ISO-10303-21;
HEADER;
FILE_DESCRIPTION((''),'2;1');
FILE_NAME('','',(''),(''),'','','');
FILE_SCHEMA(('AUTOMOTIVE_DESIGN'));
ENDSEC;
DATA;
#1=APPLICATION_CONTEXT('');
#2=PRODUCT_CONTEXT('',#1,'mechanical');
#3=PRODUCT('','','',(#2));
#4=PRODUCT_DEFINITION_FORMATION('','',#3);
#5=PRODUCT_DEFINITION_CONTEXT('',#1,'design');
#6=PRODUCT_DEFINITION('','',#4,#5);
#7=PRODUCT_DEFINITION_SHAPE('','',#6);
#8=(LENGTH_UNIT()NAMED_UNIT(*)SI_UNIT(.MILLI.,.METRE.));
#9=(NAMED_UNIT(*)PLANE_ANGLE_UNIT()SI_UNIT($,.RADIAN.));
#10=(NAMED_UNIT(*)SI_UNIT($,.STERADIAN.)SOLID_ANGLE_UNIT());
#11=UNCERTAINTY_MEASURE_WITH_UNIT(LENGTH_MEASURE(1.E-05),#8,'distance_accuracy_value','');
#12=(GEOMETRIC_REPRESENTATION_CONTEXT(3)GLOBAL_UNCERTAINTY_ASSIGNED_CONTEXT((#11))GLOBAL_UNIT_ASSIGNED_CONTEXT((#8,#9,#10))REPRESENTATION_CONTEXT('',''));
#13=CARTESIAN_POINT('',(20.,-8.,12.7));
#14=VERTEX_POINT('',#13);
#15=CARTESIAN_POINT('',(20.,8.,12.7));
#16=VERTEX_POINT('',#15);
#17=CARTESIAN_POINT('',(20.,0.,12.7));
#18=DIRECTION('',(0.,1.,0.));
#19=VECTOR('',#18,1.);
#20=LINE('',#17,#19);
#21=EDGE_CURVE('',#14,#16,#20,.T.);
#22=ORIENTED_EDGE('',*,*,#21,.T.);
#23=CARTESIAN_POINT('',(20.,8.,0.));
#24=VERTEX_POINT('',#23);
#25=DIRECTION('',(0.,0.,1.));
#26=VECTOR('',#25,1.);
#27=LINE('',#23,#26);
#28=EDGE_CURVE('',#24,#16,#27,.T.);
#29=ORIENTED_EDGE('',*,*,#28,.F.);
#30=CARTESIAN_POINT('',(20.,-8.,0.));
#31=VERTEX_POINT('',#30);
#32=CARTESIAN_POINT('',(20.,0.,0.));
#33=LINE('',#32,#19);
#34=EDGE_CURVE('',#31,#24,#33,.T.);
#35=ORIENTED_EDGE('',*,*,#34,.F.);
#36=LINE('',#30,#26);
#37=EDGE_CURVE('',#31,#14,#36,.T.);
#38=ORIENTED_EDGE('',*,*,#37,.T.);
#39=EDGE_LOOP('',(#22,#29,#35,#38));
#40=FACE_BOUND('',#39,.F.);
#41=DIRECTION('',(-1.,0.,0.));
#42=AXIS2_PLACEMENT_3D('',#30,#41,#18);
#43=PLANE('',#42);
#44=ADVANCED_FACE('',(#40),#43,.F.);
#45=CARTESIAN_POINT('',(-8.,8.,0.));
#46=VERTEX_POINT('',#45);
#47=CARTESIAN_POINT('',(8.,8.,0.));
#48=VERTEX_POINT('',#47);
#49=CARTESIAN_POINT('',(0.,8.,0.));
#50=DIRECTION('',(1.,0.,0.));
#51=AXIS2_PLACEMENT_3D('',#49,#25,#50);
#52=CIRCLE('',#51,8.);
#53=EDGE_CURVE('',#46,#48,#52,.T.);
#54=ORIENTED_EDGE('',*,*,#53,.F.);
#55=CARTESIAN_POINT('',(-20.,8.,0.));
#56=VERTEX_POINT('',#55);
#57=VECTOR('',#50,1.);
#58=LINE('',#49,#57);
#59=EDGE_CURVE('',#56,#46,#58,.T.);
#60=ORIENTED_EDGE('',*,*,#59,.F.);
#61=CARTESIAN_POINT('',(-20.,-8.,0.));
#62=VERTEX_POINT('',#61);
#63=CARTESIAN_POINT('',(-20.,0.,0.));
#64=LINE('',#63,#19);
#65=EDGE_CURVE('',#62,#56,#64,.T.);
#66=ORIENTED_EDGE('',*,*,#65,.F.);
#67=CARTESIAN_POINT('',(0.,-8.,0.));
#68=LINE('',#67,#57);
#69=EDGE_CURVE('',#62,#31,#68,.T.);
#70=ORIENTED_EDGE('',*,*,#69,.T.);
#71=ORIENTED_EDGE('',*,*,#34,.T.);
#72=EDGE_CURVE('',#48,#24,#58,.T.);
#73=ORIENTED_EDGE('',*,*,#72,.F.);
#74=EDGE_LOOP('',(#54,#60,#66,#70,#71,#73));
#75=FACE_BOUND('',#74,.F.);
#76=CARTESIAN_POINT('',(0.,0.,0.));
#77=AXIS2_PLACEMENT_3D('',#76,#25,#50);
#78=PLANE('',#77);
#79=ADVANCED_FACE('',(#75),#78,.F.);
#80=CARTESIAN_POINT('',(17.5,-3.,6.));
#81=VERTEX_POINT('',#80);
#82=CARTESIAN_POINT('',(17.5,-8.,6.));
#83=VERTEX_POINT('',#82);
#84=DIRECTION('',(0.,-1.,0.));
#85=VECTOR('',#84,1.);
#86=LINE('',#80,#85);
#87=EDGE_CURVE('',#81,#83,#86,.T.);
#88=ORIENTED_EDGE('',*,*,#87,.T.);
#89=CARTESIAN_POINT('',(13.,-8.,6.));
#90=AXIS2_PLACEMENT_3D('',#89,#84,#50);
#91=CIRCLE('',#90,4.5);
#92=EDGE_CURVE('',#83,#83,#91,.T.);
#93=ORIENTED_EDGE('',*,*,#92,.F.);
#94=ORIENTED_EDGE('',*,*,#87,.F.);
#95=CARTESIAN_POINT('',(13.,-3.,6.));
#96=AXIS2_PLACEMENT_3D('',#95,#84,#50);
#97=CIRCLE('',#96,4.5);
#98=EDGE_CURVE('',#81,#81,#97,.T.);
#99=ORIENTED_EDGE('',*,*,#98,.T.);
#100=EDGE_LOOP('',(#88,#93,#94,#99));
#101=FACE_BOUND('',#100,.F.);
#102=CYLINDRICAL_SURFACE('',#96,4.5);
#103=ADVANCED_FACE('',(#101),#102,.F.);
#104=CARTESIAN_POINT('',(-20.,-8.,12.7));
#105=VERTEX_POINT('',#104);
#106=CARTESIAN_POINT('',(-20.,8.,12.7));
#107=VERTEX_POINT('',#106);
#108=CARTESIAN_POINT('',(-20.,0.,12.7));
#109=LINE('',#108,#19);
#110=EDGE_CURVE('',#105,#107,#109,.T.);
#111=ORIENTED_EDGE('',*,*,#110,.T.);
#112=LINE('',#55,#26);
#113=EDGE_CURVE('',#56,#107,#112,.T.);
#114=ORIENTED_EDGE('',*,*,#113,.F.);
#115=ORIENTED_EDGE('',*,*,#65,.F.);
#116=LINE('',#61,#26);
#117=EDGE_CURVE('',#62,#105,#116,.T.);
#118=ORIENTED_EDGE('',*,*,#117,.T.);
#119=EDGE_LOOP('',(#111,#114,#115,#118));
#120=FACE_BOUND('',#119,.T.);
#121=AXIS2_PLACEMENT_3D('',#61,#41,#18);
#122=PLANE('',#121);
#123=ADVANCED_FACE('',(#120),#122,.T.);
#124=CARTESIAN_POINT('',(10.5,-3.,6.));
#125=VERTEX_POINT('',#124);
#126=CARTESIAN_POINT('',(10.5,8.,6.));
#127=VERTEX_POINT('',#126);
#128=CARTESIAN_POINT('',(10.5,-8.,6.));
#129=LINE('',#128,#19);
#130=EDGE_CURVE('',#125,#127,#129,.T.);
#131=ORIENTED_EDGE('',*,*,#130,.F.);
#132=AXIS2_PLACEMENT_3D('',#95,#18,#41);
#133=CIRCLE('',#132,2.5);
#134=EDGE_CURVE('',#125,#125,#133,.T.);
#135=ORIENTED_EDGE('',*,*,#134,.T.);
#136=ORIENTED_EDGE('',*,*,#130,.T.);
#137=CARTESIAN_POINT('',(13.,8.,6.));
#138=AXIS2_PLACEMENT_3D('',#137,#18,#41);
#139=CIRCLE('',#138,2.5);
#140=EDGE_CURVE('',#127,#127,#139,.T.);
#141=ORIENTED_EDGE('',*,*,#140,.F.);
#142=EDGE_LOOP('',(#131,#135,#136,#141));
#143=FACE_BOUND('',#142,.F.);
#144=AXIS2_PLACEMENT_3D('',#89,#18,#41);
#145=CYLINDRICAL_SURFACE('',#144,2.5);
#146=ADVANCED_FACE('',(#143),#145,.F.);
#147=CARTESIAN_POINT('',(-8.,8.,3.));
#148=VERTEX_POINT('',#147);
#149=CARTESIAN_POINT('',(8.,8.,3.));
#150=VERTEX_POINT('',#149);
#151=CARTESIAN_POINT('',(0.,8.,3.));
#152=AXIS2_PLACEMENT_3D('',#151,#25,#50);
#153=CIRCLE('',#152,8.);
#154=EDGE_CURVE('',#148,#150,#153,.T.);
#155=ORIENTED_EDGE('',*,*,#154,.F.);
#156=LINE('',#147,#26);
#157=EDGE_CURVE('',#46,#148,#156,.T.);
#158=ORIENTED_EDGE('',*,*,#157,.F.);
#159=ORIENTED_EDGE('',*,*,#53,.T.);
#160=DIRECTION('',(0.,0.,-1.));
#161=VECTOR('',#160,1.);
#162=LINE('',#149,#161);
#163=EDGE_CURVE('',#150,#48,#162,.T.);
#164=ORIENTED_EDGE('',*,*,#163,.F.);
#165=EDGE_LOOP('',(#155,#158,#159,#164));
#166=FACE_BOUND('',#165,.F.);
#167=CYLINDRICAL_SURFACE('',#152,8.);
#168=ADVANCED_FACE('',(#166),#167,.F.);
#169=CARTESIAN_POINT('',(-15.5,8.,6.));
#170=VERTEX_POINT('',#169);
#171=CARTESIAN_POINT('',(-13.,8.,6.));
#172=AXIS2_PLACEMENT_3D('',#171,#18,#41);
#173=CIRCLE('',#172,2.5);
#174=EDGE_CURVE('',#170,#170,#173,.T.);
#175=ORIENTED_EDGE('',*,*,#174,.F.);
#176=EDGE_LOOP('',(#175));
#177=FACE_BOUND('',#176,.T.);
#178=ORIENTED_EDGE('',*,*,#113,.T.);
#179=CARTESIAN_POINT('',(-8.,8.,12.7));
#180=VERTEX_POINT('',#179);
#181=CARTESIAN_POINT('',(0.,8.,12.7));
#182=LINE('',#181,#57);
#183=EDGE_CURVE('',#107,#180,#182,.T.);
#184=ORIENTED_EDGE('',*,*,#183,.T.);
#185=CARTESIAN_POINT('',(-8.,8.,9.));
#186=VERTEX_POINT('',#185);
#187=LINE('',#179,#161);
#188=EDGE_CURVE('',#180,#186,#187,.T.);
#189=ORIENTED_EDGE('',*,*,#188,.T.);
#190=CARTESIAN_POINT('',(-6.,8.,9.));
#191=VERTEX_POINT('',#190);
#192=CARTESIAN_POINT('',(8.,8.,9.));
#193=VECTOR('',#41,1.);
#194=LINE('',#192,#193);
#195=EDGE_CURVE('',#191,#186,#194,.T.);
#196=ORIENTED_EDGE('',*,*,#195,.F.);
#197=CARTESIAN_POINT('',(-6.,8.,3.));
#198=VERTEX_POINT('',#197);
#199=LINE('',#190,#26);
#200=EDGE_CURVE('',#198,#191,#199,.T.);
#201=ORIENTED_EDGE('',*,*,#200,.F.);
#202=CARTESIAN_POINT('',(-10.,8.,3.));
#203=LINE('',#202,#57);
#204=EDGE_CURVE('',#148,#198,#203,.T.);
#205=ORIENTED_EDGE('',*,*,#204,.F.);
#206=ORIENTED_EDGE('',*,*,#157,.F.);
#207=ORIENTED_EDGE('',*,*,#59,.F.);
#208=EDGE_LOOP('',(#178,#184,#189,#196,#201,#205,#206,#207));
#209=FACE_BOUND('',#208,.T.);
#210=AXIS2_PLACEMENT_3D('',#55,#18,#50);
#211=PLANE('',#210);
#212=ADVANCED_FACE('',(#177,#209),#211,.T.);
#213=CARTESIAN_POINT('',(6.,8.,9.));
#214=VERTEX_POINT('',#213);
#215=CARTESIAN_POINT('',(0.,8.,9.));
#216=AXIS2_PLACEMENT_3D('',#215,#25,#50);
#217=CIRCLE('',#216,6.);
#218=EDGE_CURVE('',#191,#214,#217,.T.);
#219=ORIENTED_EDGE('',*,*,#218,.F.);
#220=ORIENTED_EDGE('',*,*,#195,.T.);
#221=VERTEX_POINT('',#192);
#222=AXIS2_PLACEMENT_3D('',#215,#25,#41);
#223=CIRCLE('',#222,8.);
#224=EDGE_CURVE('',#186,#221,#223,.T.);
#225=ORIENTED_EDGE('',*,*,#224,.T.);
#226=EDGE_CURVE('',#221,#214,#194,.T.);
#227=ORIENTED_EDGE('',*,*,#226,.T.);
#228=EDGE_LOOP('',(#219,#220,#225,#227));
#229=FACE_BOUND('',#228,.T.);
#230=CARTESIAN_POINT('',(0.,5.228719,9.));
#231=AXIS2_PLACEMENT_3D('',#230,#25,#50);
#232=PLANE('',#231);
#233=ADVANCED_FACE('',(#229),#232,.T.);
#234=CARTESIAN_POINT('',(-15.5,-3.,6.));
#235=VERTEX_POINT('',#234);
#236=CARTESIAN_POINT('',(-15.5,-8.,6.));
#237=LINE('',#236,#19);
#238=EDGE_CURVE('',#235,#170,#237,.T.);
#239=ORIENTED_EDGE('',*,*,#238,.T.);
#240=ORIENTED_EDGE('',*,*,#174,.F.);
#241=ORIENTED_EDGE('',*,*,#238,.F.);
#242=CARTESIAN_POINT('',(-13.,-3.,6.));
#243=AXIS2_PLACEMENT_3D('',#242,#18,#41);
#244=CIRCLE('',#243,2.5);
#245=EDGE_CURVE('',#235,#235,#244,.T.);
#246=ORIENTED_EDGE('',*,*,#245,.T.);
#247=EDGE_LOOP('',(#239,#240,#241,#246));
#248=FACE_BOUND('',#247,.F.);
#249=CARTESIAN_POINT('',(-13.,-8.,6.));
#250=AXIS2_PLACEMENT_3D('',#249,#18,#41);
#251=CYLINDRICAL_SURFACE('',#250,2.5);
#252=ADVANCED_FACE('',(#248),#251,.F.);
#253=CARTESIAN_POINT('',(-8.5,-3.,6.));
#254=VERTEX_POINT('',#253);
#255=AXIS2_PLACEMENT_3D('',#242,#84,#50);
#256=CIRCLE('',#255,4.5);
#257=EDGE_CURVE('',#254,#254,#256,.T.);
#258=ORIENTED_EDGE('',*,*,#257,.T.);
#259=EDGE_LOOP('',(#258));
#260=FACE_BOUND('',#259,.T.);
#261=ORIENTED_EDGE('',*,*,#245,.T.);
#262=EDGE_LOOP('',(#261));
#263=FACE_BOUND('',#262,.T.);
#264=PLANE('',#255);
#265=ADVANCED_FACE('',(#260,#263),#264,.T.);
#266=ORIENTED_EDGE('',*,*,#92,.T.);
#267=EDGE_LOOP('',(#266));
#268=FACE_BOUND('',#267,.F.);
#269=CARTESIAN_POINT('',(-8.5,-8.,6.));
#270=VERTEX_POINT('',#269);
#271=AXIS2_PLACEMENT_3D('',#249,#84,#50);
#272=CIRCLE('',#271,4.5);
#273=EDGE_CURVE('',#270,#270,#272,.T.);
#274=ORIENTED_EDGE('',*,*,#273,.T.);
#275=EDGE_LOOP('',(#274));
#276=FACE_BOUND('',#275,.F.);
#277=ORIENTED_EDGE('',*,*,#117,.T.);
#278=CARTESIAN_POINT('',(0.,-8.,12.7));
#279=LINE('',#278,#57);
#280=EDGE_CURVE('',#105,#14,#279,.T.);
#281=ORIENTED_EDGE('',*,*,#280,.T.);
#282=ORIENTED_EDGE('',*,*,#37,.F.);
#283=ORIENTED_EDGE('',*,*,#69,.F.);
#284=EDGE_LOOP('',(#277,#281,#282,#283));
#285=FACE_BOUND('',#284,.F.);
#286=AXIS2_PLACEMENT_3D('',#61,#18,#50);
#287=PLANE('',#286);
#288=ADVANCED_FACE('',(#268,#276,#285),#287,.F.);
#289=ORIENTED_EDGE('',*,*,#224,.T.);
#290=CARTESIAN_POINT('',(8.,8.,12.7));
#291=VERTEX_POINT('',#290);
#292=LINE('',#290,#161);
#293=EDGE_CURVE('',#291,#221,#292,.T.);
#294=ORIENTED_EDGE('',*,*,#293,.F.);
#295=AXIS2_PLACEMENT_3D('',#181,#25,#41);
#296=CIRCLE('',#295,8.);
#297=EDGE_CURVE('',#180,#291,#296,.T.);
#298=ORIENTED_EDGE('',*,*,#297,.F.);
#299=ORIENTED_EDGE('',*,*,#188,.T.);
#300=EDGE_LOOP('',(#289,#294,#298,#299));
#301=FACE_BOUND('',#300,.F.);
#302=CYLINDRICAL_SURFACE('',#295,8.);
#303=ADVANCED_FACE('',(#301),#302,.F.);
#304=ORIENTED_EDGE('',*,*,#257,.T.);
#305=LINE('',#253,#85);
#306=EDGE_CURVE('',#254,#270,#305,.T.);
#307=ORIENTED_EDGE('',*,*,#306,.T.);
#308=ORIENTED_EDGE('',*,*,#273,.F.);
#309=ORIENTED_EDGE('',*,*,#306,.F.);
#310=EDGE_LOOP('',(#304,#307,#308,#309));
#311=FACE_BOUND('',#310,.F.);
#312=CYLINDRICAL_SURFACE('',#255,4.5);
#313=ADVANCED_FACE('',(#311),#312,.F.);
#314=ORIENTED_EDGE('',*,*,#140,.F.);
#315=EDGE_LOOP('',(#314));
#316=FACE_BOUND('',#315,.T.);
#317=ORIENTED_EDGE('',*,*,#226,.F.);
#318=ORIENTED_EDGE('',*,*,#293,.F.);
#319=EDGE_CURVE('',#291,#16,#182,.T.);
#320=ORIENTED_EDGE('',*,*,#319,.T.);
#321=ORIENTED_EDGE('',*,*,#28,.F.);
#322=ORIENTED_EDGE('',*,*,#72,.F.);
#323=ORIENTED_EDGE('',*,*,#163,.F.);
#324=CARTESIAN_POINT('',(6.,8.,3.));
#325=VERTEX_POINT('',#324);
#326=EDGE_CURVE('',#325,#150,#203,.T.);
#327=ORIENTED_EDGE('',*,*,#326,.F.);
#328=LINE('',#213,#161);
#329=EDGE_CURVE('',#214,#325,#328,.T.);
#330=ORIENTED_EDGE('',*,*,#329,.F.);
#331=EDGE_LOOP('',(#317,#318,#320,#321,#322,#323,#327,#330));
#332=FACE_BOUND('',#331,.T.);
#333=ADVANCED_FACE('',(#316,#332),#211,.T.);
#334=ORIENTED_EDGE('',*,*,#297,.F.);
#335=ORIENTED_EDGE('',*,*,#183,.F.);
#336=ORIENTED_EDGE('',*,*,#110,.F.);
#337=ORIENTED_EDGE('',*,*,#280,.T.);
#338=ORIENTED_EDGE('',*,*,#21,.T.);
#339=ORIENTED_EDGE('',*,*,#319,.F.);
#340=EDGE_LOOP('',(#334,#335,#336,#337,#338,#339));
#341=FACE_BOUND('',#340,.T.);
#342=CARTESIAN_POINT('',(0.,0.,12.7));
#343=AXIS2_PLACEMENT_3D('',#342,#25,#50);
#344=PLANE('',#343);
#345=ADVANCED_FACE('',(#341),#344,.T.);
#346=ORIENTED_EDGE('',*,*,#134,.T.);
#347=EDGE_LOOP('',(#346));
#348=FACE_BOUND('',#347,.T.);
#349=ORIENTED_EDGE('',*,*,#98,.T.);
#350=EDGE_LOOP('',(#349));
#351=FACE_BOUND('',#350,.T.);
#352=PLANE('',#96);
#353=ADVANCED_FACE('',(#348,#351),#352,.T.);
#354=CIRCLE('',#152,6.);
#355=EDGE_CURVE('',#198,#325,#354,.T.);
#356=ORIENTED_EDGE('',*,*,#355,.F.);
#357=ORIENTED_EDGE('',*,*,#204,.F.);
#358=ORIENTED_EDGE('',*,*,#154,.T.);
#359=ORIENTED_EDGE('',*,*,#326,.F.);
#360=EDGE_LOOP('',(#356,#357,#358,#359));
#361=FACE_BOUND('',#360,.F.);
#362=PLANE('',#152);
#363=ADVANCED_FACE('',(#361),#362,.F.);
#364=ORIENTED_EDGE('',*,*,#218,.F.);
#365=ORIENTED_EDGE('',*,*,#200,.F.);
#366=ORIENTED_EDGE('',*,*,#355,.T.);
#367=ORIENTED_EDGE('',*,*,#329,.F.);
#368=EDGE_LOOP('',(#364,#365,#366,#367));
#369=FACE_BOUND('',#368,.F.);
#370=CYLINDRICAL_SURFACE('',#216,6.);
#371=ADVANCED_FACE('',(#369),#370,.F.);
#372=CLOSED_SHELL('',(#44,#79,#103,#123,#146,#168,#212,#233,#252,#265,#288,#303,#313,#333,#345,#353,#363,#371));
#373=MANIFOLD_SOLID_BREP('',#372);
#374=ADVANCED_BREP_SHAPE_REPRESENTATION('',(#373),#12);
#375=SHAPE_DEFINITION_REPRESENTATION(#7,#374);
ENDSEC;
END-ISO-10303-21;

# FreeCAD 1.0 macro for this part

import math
import FreeCAD as App
import Part
import Sketcher
from FreeCAD import Vector
Q = App.Units.Quantity


def add_polygon(sketch, points):
    """Adds a closed chain of lines whose ends are joined by coincident constraints."""
    first, n = sketch.GeometryCount, len(points)
    for a, b in zip(points, points[1:] + points[:1]):
        sketch.addGeometry(Part.LineSegment(App.Vector(*a, 0), App.Vector(*b, 0)), False)
    for i in range(n):
        sketch.addConstraint(Sketcher.Constraint("Coincident", first + i, 2, first + (i + 1) % n, 1))

doc = App.newDocument("Part")
body = doc.addObject("PartDesign::Body", "Body")

# Sketch on XY plane
sketch1 = body.newObject("Sketcher::SketchObject", "Sketch")
sketch1.AttachmentSupport = (doc.getObject("XY_Plane"), [""])
sketch1.MapMode = "FlatFace"
add_polygon(sketch1, [(-20, 8), (-20, -8), (20, -8), (20, 8)])  # lines 0-3
sketch1.addConstraint(Sketcher.Constraint("Vertical", 0))
sketch1.addConstraint(Sketcher.Constraint("Horizontal", 1))
sketch1.addConstraint(Sketcher.Constraint("Vertical", 2))
sketch1.addConstraint(Sketcher.Constraint("Horizontal", 3))
sketch1.addConstraint(Sketcher.Constraint("Symmetric", 0, 2, 2, 2, -1, 1))
sketch1.addConstraint(Sketcher.Constraint("DistanceX", 1, 1, 1, 2, Q("40 mm")))
sketch1.addConstraint(Sketcher.Constraint("DistanceY", 0, 2, 0, 1, Q("16 mm")))
pad1 = body.newObject("PartDesign::Pad", "Pad")
pad1.Profile = sketch1
pad1.Length = 12.7

# Sketch on XY plane
sketch2 = body.newObject("Sketcher::SketchObject", "Sketch001")
sketch2.AttachmentSupport = (doc.getObject("XY_Plane"), [""])
sketch2.MapMode = "FlatFace"
sketch2.AttachmentOffset = App.Placement(Vector(0, 0, 12.7), App.Rotation())
sketch2.addGeometry(Part.ArcOfCircle(Part.Circle(Vector(0, 8, 0), Vector(0, 0, 1), 8), math.radians(180), math.radians(360)), False)
sketch2.addGeometry(Part.LineSegment(Vector(8, 8, 0), Vector(-8, 8, 0)), False)
sketch2.addConstraint(Sketcher.Constraint("Coincident", 0, 1, 1, 2))
sketch2.addConstraint(Sketcher.Constraint("Coincident", 1, 1, 0, 2))
sketch2.addConstraint(Sketcher.Constraint("Horizontal", 1))
sketch2.addConstraint(Sketcher.Constraint("PointOnObject", 0, 3, -2))
sketch2.addConstraint(Sketcher.Constraint("Radius", 0, Q("8 mm")))
sketch2.addConstraint(Sketcher.Constraint("DistanceY", -1, 1, 0, 3, Q("8 mm")))
sketch2.addConstraint(Sketcher.Constraint("DistanceY", -1, 1, 0, 1, Q("8 mm")))
pocket1 = body.newObject("PartDesign::Pocket", "Pocket")
pocket1.Profile = sketch2
pocket1.Length = 3.7

# Sketch on XY plane
sketch3 = body.newObject("Sketcher::SketchObject", "Sketch002")
sketch3.AttachmentSupport = (doc.getObject("XY_Plane"), [""])
sketch3.MapMode = "FlatFace"
sketch3.AttachmentOffset = App.Placement(Vector(0, 0, 9), App.Rotation())
sketch3.addGeometry(Part.Circle(Vector(0, 8, 0), Vector(0, 0, 1), 6), False)
sketch3.addConstraint(Sketcher.Constraint("PointOnObject", 0, 3, -2))
sketch3.addConstraint(Sketcher.Constraint("Diameter", 0, Q("12 mm")))
sketch3.addConstraint(Sketcher.Constraint("DistanceY", -1, 1, 0, 3, Q("8 mm")))
pocket2 = body.newObject("PartDesign::Pocket", "Pocket001")
pocket2.Profile = sketch3
pocket2.Length = 6

# Sketch on XY plane
sketch4 = body.newObject("Sketcher::SketchObject", "Sketch003")
sketch4.AttachmentSupport = (doc.getObject("XY_Plane"), [""])
sketch4.MapMode = "FlatFace"
sketch4.AttachmentOffset = App.Placement(Vector(0, 0, 3), App.Rotation())
sketch4.addGeometry(Part.Circle(Vector(0, 8, 0), Vector(0, 0, 1), 8), False)
sketch4.addConstraint(Sketcher.Constraint("PointOnObject", 0, 3, -2))
sketch4.addConstraint(Sketcher.Constraint("Diameter", 0, Q("16 mm")))
sketch4.addConstraint(Sketcher.Constraint("DistanceY", -1, 1, 0, 3, Q("8 mm")))
pocket3 = body.newObject("PartDesign::Pocket", "Pocket002")
pocket3.Profile = sketch4
pocket3.Length = 3

# Sketch on XZ plane
sketch5 = body.newObject("Sketcher::SketchObject", "Sketch004")
sketch5.AttachmentSupport = (doc.getObject("XZ_Plane"), [""])
sketch5.MapMode = "FlatFace"
sketch5.AttachmentOffset = App.Placement(Vector(0, 0, 8), App.Rotation())
sketch5.addGeometry(Part.Circle(Vector(-13, 6, 0), Vector(0, 0, 1), 2.5), False)
sketch5.addGeometry(Part.Circle(Vector(13, 6, 0), Vector(0, 0, 1), 2.5), False)
sketch5.addConstraint(Sketcher.Constraint("Equal", 0, 1))
sketch5.addConstraint(Sketcher.Constraint("Symmetric", 0, 3, 1, 3, -2))
sketch5.addConstraint(Sketcher.Constraint("Diameter", 0, Q("5 mm")))
sketch5.addConstraint(Sketcher.Constraint("DistanceX", 0, 3, -1, 1, Q("13 mm")))
sketch5.addConstraint(Sketcher.Constraint("DistanceY", -1, 1, 0, 3, Q("6 mm")))
doc.recompute()
hole = body.newObject("PartDesign::Hole", "Hole")
hole.Profile = sketch5
hole.ThreadType = "None"
hole.Diameter = 5
hole.DepthType = "ThroughAll"
hole.HoleCutType = "Counterbore"
hole.HoleCutDiameter = 9
hole.HoleCutDepth = 5

doc.recompute()
